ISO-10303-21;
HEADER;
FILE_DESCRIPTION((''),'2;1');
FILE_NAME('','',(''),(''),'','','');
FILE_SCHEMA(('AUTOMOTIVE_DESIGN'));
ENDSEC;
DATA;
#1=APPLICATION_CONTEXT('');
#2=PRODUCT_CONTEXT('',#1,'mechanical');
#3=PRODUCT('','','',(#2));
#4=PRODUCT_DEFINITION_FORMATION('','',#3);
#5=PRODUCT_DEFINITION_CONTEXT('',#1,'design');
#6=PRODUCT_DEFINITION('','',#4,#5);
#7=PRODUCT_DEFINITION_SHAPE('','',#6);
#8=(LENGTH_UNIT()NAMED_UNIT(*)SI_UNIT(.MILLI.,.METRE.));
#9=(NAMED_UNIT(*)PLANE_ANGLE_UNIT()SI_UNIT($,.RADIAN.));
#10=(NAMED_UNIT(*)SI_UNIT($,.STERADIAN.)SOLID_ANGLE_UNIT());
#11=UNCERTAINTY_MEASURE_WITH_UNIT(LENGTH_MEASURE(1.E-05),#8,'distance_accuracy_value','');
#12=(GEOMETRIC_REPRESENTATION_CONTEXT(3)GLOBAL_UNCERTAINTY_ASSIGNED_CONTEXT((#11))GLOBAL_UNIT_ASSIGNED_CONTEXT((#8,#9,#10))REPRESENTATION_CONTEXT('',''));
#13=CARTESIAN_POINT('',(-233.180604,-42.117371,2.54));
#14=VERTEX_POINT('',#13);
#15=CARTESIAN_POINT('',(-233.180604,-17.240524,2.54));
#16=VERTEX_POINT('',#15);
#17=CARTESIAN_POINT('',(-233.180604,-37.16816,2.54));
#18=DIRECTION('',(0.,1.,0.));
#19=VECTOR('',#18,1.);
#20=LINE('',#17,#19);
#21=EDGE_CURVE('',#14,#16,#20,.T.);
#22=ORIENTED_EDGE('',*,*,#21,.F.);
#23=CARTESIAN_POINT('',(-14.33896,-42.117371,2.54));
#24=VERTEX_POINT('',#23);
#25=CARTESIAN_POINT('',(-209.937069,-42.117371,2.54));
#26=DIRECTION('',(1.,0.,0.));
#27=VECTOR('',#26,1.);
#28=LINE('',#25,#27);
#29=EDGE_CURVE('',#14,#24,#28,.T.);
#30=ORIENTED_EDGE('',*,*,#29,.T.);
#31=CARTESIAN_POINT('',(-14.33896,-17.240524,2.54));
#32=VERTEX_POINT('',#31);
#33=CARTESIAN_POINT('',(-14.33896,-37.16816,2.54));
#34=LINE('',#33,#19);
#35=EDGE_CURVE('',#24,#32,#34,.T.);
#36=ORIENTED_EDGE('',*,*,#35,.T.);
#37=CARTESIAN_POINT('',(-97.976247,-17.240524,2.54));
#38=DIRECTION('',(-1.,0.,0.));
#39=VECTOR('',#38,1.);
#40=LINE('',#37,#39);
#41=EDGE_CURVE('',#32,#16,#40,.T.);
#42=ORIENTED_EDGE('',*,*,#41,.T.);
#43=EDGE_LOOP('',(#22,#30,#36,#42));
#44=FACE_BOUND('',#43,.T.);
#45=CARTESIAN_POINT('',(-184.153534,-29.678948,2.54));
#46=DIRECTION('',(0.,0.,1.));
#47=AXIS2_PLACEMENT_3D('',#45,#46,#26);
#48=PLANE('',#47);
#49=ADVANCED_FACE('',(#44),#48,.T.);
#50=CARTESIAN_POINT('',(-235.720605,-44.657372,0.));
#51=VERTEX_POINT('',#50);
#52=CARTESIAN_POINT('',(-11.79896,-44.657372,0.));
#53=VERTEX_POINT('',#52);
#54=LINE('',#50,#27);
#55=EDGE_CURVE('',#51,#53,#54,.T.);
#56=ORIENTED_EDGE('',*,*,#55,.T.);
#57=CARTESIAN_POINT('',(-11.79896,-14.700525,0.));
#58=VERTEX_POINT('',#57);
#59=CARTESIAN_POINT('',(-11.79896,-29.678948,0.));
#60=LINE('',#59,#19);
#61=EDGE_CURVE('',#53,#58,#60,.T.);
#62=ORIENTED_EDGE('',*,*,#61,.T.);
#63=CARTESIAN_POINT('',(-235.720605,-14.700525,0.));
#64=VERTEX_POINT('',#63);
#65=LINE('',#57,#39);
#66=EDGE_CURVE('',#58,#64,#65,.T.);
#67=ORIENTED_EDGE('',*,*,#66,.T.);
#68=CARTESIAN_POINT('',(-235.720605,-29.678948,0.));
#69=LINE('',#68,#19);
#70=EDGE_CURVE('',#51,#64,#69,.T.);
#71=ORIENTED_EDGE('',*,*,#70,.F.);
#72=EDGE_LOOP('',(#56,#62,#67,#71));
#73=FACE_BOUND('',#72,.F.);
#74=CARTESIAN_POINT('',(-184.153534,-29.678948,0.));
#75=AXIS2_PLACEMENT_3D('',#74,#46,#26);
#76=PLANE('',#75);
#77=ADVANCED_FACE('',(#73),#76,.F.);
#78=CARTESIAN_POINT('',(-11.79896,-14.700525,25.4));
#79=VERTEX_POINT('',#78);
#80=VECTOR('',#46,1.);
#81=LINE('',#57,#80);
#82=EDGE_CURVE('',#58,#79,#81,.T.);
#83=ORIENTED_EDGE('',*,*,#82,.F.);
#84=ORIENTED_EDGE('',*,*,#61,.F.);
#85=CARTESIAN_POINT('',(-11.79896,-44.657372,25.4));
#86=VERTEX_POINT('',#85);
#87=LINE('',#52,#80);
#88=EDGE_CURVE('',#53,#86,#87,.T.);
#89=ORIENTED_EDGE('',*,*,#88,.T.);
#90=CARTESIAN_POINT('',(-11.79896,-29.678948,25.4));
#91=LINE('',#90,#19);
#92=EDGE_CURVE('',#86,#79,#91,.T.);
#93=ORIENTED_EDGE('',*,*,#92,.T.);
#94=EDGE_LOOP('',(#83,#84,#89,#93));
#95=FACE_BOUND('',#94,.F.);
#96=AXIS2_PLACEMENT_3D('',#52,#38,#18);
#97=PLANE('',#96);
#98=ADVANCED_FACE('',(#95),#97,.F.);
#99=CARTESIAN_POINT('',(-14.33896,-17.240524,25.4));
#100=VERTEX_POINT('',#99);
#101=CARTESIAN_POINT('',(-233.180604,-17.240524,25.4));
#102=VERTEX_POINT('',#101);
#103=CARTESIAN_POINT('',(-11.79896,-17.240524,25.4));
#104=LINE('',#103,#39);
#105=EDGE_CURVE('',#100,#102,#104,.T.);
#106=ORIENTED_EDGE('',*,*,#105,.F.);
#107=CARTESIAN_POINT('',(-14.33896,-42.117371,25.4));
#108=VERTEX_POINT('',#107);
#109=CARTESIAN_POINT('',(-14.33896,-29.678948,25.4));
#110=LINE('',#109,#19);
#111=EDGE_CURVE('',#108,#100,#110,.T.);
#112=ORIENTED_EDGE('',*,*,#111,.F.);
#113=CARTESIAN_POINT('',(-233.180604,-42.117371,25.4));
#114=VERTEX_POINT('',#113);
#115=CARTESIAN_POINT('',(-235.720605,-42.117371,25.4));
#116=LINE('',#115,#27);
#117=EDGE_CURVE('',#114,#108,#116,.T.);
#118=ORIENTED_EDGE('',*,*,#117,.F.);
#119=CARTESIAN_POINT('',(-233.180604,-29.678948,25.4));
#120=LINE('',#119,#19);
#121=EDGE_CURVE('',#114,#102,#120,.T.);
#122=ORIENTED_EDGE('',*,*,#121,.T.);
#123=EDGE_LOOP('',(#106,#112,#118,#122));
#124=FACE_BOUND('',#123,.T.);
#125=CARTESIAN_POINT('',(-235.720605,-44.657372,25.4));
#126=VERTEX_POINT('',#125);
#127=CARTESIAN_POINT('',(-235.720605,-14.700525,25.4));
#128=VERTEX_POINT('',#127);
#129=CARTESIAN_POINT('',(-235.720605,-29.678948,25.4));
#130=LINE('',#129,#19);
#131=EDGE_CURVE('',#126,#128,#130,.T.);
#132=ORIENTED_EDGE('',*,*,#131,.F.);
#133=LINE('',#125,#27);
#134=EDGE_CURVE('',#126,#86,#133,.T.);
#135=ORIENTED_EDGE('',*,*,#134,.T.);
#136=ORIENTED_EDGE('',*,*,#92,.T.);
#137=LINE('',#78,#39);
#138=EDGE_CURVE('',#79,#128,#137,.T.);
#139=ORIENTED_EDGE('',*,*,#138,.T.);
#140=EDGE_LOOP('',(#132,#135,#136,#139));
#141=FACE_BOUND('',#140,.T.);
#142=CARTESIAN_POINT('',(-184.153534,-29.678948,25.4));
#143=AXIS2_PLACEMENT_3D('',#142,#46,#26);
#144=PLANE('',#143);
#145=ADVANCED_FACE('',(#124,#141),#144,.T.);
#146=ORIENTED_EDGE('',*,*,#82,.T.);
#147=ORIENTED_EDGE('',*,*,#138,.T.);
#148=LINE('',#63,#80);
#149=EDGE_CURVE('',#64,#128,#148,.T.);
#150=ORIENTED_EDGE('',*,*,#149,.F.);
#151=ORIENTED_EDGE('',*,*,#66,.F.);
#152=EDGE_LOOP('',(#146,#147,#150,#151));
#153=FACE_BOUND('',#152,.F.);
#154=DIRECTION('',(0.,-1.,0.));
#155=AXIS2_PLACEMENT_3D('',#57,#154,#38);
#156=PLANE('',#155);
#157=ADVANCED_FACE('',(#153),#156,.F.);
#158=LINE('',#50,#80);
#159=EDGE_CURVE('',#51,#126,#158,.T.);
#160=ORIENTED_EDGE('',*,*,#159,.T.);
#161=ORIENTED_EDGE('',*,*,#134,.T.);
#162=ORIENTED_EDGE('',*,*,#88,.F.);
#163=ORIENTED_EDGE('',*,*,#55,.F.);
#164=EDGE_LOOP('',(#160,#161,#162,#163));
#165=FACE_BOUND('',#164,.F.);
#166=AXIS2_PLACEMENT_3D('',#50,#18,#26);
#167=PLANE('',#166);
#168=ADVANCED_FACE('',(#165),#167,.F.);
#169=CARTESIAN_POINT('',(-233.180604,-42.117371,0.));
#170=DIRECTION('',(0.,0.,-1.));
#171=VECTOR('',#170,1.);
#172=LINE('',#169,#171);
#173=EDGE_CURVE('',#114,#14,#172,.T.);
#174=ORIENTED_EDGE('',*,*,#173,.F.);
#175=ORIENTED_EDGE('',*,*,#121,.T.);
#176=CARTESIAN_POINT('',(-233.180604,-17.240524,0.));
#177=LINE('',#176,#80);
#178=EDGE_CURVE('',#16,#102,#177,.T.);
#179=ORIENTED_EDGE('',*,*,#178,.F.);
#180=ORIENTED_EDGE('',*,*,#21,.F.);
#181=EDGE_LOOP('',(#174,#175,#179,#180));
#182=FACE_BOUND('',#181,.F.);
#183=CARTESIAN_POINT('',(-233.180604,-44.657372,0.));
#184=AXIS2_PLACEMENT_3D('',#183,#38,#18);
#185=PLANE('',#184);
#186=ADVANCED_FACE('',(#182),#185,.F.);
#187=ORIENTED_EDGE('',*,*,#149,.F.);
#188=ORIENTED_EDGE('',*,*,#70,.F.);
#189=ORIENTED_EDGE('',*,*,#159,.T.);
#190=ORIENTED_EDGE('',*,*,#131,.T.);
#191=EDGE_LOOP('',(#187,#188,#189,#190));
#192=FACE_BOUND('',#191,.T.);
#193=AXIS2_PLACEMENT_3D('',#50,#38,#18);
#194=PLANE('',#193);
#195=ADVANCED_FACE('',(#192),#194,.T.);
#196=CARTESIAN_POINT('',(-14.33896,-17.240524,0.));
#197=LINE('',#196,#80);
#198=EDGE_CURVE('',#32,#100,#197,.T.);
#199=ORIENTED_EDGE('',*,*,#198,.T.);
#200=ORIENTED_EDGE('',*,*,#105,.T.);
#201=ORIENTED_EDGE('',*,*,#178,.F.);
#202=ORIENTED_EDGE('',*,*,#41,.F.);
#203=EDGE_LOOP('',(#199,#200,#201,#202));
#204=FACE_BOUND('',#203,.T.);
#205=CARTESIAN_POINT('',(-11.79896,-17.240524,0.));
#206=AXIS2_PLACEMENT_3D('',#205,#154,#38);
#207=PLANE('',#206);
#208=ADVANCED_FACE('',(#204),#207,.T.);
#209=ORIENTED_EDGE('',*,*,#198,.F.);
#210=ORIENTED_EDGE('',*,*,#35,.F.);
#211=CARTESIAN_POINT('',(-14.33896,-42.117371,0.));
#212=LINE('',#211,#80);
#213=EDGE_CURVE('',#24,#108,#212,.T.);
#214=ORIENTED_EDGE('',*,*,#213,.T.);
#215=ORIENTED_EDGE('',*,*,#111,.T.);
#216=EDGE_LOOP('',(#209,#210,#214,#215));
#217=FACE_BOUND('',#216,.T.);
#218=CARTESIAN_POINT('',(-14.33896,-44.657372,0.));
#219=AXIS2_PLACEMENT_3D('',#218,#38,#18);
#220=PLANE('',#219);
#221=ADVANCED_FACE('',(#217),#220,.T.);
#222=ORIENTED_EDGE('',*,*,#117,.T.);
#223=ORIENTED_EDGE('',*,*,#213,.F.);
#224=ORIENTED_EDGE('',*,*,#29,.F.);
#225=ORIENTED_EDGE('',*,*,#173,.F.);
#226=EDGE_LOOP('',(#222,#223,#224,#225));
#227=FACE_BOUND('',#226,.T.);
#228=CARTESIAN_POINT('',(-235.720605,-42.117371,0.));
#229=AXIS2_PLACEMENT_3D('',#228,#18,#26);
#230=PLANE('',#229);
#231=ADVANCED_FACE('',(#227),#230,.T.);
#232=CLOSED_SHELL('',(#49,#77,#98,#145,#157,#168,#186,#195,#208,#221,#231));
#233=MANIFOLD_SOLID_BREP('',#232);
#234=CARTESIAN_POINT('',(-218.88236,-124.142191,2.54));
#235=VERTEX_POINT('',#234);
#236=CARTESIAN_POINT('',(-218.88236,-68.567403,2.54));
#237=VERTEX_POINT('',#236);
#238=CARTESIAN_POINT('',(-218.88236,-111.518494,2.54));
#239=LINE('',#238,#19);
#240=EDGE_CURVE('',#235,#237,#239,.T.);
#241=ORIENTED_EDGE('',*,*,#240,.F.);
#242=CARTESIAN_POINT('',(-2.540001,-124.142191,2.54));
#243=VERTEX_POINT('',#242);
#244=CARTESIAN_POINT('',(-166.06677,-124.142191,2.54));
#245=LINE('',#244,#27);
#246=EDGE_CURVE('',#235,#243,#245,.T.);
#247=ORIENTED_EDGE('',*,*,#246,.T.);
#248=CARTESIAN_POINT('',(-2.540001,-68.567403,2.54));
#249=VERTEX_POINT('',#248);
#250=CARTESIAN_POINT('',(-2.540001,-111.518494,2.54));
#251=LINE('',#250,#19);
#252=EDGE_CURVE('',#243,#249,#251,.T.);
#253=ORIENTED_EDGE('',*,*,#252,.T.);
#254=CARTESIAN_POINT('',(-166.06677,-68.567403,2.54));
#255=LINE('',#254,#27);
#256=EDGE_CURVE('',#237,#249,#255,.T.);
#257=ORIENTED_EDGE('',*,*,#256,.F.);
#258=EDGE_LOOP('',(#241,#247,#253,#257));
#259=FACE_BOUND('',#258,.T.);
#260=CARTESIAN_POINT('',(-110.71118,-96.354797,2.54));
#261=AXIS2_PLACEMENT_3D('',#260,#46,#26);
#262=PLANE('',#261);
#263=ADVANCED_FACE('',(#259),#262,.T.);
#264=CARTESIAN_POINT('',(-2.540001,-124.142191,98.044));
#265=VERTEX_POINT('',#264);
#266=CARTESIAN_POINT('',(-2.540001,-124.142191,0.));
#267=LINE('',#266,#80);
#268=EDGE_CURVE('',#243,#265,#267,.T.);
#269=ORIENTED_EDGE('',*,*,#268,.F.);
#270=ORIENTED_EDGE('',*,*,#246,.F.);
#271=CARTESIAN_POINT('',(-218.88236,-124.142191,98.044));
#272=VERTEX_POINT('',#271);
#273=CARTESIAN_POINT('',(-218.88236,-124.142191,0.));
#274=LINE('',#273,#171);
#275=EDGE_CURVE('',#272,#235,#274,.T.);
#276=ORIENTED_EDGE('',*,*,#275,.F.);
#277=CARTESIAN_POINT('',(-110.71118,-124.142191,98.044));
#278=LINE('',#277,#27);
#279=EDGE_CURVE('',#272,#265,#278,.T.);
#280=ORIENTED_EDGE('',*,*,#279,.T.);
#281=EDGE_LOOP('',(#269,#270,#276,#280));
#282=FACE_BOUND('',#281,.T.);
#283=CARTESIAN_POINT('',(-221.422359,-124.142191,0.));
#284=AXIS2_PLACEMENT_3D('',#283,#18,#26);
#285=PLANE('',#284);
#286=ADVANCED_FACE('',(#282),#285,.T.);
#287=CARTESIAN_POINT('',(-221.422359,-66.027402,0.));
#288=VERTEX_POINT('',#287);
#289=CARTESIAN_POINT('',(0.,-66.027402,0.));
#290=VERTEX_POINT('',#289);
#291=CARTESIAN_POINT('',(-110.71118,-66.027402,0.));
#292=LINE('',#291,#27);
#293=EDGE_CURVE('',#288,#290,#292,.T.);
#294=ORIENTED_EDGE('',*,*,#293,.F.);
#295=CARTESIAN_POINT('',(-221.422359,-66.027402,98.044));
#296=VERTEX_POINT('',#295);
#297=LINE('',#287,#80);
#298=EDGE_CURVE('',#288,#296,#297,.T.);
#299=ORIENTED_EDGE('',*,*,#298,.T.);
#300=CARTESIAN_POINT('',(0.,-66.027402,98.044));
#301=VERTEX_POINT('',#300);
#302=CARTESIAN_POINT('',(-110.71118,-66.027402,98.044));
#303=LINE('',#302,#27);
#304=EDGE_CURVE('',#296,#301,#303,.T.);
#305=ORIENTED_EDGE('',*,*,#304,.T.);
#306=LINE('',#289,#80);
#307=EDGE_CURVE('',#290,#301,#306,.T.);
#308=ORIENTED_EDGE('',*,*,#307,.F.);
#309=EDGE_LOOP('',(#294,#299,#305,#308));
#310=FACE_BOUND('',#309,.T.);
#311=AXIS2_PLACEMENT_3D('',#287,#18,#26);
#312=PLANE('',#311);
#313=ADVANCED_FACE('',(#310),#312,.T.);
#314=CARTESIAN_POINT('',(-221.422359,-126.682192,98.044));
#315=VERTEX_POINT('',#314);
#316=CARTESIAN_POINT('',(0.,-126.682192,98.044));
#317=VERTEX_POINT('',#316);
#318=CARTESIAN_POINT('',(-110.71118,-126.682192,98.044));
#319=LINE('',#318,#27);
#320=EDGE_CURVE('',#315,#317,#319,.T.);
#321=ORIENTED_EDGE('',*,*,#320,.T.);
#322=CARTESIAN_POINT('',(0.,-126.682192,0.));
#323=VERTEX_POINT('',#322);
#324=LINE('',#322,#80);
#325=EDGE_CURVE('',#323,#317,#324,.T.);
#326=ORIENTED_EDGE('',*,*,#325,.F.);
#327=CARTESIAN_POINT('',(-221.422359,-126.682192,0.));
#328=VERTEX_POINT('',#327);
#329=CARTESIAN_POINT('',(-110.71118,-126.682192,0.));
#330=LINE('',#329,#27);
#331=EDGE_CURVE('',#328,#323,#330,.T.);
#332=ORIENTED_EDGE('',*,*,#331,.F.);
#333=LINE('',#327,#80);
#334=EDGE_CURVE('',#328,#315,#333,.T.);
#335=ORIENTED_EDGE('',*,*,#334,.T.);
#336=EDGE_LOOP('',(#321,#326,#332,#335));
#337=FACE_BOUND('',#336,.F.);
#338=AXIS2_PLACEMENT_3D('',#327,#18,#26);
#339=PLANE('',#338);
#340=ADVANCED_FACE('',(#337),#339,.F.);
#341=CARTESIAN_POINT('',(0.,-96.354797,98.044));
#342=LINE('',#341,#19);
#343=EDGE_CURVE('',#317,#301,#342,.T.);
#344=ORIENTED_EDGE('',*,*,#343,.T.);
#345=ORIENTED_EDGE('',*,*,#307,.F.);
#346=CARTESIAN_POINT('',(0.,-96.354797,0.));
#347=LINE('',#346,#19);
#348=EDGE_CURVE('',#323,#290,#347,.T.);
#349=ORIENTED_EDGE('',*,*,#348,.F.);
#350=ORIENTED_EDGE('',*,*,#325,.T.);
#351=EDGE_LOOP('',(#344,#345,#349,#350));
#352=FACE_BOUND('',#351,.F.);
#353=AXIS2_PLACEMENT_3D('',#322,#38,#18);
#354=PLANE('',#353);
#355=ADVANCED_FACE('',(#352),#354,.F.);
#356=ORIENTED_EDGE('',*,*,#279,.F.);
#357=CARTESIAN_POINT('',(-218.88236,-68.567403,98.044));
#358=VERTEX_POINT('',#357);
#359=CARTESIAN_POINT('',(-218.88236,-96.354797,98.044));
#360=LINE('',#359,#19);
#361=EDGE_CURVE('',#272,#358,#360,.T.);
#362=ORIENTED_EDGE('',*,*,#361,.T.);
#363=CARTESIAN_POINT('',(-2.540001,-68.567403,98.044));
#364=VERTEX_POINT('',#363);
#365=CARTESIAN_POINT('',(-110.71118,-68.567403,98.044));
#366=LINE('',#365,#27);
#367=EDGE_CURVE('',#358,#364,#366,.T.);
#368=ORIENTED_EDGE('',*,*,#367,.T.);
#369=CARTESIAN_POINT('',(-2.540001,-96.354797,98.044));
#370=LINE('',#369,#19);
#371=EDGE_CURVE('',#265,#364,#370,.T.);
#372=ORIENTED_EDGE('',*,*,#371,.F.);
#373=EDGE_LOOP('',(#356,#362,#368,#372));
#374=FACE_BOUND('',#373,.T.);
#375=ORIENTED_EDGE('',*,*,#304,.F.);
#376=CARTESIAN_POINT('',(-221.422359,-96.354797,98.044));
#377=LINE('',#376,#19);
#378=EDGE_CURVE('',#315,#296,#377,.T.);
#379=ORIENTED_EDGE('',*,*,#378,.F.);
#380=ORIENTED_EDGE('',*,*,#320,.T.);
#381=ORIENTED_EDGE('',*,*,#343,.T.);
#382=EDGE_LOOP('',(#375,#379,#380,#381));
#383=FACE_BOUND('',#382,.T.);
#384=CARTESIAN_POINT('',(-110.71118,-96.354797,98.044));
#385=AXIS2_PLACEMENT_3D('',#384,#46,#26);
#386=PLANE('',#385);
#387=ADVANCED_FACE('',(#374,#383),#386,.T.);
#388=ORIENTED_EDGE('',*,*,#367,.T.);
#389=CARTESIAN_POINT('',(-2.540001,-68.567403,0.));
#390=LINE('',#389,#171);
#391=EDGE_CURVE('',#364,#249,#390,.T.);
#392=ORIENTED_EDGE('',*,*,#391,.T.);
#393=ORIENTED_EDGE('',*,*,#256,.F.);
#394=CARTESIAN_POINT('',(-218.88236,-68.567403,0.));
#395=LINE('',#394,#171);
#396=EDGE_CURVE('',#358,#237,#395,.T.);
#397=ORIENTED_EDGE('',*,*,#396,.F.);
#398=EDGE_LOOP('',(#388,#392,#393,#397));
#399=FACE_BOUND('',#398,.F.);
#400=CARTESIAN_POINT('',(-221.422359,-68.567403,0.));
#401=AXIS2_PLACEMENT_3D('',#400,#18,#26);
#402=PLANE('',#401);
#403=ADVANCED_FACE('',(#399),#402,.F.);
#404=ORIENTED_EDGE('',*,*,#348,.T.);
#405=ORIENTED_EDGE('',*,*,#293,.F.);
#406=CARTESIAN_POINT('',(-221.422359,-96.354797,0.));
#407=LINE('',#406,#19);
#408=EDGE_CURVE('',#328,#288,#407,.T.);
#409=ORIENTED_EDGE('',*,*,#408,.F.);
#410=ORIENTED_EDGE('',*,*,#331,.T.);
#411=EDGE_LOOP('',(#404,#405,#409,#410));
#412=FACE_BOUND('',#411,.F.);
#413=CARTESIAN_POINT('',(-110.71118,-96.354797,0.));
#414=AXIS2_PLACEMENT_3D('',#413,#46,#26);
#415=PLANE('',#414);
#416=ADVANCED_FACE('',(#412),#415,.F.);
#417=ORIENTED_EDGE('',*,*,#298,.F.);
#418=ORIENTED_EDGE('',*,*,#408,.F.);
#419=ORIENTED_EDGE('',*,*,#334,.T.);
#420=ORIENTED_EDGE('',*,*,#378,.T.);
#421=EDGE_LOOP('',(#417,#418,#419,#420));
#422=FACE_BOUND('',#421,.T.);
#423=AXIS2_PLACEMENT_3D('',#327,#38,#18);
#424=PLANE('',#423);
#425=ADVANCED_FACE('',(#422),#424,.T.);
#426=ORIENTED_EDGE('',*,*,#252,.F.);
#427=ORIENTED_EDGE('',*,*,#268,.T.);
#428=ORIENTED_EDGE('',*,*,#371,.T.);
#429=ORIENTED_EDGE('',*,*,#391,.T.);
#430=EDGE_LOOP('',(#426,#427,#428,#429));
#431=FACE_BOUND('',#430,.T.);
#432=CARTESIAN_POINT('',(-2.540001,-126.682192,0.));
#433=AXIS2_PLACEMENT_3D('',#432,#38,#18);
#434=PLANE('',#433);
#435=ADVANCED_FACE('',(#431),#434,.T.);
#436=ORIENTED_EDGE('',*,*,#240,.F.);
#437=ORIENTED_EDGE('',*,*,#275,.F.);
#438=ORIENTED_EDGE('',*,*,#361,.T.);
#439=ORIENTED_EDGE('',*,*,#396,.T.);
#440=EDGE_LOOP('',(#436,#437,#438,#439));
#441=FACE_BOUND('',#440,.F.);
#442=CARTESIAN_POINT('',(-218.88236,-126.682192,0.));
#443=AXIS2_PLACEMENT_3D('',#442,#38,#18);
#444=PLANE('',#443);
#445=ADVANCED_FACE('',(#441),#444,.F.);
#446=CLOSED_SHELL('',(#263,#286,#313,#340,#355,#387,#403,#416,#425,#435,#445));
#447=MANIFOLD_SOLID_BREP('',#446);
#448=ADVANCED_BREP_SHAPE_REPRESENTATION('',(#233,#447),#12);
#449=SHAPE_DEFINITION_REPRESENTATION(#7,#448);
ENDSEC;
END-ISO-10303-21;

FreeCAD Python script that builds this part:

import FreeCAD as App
import Part
import Sketcher
from FreeCAD import Vector
Q = App.Units.Quantity


def faces_at(feature, points):
    """Names of the faces that lie closest to the given points."""
    faces = feature.Shape.Faces
    near = lambda p: min(range(len(faces)), key=lambda i: faces[i].distToShape(Part.Vertex(*p))[0])
    return sorted({f"Face{near(p) + 1}" for p in points})

doc = App.newDocument("Part")
body = doc.addObject("PartDesign::Body", "Body")

# Sketch on XY plane
sketch1 = doc.addObject("Sketcher::SketchObject", "Sketch")
body.addObject(sketch1)
sketch1.AttachmentSupport = (doc.XY_Plane, [""])
sketch1.MapMode = "FlatFace"
sketch1.addGeometry([
    Part.LineSegment(Vector(-221, -66, 0), Vector(-221, -127, 0)),
    Part.LineSegment(Vector(-221, -127, 0), Vector(0, -127, 0)),
    Part.LineSegment(Vector(0, -127, 0), Vector(0, -66, 0)),
    Part.LineSegment(Vector(0, -66, 0), Vector(-221, -66, 0)),
], False)
sketch1.addConstraint([
    Sketcher.Constraint("Coincident", 0, 2, 1, 1),
    Sketcher.Constraint("Coincident", 1, 2, 2, 1),
    Sketcher.Constraint("Coincident", 2, 2, 3, 1),
    Sketcher.Constraint("Coincident", 3, 2, 0, 1),
    Sketcher.Constraint("Vertical", 0),
    Sketcher.Constraint("Horizontal", 1),
    Sketcher.Constraint("Vertical", 2),
    Sketcher.Constraint("Horizontal", 3),
    Sketcher.Constraint("PointOnObject", 1, 2, -2),
    Sketcher.Constraint("DistanceX", 1, 1, 1, 2, Q("221.422359 mm")),
    Sketcher.Constraint("DistanceY", 0, 2, 0, 1, Q("60.654789 mm")),
    Sketcher.Constraint("DistanceY", 0, 2, -1, 1, Q("126.682192 mm")),
])
pad1 = doc.addObject("PartDesign::Pad", "Pad")
body.addObject(pad1)
pad1.Profile = sketch1
pad1.Length = Q("3.86 in")
doc.recompute()

thickness = doc.addObject("PartDesign::Thickness", "Thickness")
body.addObject(thickness)
thickness.Base = (pad1, faces_at(pad1, [(-110.711, -96.355, 98.044)]))
thickness.Value = Q("0.1 in")
thickness.Reversed = True
thickness.Join = "Arc"

# Sketch on XY plane
sketch2 = doc.addObject("Sketcher::SketchObject", "Sketch001")
body.addObject(sketch2)
sketch2.AttachmentSupport = (doc.XY_Plane, [""])
sketch2.MapMode = "FlatFace"
sketch2.addGeometry(Part.Circle(Vector(115, 57, 0), Vector(0, 0, 1), 95), False)
sketch2.addConstraint([
    Sketcher.Constraint("Diameter", 0, Q("7.449 in")),
    Sketcher.Constraint("DistanceX", -1, 1, 0, 3, Q("115.478948 mm")),
    Sketcher.Constraint("DistanceY", -1, 1, 0, 3, Q("56.669008 mm")),
])
pocket1 = doc.addObject("PartDesign::Pocket", "Pocket")
body.addObject(pocket1)
pocket1.Profile = sketch2
pocket1.Length = Q("9.08 in")
pocket1.Reversed = True
body2 = doc.addObject("PartDesign::Body", "Body001")

# Sketch on XY plane
sketch3 = doc.addObject("Sketcher::SketchObject", "Sketch002")
body2.addObject(sketch3)
sketch3.AttachmentSupport = (doc.getObject("XY_Plane001"), [""])
sketch3.MapMode = "FlatFace"
sketch3.addGeometry([
    Part.LineSegment(Vector(-236, -15, 0), Vector(-236, -45, 0)),
    Part.LineSegment(Vector(-236, -45, 0), Vector(-12, -45, 0)),
    Part.LineSegment(Vector(-12, -45, 0), Vector(-12, -15, 0)),
    Part.LineSegment(Vector(-12, -15, 0), Vector(-236, -15, 0)),
], False)
sketch3.addConstraint([
    Sketcher.Constraint("Coincident", 0, 2, 1, 1),
    Sketcher.Constraint("Coincident", 1, 2, 2, 1),
    Sketcher.Constraint("Coincident", 2, 2, 3, 1),
    Sketcher.Constraint("Coincident", 3, 2, 0, 1),
    Sketcher.Constraint("Vertical", 0),
    Sketcher.Constraint("Horizontal", 1),
    Sketcher.Constraint("Vertical", 2),
    Sketcher.Constraint("Horizontal", 3),
    Sketcher.Constraint("DistanceX", 1, 1, 1, 2, Q("223.921645 mm")),
    Sketcher.Constraint("DistanceY", 0, 2, 0, 1, Q("29.956847 mm")),
    Sketcher.Constraint("DistanceY", 0, 2, -1, 1, Q("44.657372 mm")),
    Sketcher.Constraint("DistanceX", 1, 2, -1, 1, Q("11.79896 mm")),
])
pad2 = doc.addObject("PartDesign::Pad", "Pad001")
body2.addObject(pad2)
pad2.Profile = sketch3
pad2.Length = Q("1 in")
doc.recompute()

thickness2 = doc.addObject("PartDesign::Thickness", "Thickness001")
body2.addObject(thickness2)
thickness2.Base = (pad2, faces_at(pad2, [(-123.76, -29.679, 25.4)]))
thickness2.Value = Q("0.1 in")
thickness2.Reversed = True
thickness2.Join = "Arc"

doc.recompute()
